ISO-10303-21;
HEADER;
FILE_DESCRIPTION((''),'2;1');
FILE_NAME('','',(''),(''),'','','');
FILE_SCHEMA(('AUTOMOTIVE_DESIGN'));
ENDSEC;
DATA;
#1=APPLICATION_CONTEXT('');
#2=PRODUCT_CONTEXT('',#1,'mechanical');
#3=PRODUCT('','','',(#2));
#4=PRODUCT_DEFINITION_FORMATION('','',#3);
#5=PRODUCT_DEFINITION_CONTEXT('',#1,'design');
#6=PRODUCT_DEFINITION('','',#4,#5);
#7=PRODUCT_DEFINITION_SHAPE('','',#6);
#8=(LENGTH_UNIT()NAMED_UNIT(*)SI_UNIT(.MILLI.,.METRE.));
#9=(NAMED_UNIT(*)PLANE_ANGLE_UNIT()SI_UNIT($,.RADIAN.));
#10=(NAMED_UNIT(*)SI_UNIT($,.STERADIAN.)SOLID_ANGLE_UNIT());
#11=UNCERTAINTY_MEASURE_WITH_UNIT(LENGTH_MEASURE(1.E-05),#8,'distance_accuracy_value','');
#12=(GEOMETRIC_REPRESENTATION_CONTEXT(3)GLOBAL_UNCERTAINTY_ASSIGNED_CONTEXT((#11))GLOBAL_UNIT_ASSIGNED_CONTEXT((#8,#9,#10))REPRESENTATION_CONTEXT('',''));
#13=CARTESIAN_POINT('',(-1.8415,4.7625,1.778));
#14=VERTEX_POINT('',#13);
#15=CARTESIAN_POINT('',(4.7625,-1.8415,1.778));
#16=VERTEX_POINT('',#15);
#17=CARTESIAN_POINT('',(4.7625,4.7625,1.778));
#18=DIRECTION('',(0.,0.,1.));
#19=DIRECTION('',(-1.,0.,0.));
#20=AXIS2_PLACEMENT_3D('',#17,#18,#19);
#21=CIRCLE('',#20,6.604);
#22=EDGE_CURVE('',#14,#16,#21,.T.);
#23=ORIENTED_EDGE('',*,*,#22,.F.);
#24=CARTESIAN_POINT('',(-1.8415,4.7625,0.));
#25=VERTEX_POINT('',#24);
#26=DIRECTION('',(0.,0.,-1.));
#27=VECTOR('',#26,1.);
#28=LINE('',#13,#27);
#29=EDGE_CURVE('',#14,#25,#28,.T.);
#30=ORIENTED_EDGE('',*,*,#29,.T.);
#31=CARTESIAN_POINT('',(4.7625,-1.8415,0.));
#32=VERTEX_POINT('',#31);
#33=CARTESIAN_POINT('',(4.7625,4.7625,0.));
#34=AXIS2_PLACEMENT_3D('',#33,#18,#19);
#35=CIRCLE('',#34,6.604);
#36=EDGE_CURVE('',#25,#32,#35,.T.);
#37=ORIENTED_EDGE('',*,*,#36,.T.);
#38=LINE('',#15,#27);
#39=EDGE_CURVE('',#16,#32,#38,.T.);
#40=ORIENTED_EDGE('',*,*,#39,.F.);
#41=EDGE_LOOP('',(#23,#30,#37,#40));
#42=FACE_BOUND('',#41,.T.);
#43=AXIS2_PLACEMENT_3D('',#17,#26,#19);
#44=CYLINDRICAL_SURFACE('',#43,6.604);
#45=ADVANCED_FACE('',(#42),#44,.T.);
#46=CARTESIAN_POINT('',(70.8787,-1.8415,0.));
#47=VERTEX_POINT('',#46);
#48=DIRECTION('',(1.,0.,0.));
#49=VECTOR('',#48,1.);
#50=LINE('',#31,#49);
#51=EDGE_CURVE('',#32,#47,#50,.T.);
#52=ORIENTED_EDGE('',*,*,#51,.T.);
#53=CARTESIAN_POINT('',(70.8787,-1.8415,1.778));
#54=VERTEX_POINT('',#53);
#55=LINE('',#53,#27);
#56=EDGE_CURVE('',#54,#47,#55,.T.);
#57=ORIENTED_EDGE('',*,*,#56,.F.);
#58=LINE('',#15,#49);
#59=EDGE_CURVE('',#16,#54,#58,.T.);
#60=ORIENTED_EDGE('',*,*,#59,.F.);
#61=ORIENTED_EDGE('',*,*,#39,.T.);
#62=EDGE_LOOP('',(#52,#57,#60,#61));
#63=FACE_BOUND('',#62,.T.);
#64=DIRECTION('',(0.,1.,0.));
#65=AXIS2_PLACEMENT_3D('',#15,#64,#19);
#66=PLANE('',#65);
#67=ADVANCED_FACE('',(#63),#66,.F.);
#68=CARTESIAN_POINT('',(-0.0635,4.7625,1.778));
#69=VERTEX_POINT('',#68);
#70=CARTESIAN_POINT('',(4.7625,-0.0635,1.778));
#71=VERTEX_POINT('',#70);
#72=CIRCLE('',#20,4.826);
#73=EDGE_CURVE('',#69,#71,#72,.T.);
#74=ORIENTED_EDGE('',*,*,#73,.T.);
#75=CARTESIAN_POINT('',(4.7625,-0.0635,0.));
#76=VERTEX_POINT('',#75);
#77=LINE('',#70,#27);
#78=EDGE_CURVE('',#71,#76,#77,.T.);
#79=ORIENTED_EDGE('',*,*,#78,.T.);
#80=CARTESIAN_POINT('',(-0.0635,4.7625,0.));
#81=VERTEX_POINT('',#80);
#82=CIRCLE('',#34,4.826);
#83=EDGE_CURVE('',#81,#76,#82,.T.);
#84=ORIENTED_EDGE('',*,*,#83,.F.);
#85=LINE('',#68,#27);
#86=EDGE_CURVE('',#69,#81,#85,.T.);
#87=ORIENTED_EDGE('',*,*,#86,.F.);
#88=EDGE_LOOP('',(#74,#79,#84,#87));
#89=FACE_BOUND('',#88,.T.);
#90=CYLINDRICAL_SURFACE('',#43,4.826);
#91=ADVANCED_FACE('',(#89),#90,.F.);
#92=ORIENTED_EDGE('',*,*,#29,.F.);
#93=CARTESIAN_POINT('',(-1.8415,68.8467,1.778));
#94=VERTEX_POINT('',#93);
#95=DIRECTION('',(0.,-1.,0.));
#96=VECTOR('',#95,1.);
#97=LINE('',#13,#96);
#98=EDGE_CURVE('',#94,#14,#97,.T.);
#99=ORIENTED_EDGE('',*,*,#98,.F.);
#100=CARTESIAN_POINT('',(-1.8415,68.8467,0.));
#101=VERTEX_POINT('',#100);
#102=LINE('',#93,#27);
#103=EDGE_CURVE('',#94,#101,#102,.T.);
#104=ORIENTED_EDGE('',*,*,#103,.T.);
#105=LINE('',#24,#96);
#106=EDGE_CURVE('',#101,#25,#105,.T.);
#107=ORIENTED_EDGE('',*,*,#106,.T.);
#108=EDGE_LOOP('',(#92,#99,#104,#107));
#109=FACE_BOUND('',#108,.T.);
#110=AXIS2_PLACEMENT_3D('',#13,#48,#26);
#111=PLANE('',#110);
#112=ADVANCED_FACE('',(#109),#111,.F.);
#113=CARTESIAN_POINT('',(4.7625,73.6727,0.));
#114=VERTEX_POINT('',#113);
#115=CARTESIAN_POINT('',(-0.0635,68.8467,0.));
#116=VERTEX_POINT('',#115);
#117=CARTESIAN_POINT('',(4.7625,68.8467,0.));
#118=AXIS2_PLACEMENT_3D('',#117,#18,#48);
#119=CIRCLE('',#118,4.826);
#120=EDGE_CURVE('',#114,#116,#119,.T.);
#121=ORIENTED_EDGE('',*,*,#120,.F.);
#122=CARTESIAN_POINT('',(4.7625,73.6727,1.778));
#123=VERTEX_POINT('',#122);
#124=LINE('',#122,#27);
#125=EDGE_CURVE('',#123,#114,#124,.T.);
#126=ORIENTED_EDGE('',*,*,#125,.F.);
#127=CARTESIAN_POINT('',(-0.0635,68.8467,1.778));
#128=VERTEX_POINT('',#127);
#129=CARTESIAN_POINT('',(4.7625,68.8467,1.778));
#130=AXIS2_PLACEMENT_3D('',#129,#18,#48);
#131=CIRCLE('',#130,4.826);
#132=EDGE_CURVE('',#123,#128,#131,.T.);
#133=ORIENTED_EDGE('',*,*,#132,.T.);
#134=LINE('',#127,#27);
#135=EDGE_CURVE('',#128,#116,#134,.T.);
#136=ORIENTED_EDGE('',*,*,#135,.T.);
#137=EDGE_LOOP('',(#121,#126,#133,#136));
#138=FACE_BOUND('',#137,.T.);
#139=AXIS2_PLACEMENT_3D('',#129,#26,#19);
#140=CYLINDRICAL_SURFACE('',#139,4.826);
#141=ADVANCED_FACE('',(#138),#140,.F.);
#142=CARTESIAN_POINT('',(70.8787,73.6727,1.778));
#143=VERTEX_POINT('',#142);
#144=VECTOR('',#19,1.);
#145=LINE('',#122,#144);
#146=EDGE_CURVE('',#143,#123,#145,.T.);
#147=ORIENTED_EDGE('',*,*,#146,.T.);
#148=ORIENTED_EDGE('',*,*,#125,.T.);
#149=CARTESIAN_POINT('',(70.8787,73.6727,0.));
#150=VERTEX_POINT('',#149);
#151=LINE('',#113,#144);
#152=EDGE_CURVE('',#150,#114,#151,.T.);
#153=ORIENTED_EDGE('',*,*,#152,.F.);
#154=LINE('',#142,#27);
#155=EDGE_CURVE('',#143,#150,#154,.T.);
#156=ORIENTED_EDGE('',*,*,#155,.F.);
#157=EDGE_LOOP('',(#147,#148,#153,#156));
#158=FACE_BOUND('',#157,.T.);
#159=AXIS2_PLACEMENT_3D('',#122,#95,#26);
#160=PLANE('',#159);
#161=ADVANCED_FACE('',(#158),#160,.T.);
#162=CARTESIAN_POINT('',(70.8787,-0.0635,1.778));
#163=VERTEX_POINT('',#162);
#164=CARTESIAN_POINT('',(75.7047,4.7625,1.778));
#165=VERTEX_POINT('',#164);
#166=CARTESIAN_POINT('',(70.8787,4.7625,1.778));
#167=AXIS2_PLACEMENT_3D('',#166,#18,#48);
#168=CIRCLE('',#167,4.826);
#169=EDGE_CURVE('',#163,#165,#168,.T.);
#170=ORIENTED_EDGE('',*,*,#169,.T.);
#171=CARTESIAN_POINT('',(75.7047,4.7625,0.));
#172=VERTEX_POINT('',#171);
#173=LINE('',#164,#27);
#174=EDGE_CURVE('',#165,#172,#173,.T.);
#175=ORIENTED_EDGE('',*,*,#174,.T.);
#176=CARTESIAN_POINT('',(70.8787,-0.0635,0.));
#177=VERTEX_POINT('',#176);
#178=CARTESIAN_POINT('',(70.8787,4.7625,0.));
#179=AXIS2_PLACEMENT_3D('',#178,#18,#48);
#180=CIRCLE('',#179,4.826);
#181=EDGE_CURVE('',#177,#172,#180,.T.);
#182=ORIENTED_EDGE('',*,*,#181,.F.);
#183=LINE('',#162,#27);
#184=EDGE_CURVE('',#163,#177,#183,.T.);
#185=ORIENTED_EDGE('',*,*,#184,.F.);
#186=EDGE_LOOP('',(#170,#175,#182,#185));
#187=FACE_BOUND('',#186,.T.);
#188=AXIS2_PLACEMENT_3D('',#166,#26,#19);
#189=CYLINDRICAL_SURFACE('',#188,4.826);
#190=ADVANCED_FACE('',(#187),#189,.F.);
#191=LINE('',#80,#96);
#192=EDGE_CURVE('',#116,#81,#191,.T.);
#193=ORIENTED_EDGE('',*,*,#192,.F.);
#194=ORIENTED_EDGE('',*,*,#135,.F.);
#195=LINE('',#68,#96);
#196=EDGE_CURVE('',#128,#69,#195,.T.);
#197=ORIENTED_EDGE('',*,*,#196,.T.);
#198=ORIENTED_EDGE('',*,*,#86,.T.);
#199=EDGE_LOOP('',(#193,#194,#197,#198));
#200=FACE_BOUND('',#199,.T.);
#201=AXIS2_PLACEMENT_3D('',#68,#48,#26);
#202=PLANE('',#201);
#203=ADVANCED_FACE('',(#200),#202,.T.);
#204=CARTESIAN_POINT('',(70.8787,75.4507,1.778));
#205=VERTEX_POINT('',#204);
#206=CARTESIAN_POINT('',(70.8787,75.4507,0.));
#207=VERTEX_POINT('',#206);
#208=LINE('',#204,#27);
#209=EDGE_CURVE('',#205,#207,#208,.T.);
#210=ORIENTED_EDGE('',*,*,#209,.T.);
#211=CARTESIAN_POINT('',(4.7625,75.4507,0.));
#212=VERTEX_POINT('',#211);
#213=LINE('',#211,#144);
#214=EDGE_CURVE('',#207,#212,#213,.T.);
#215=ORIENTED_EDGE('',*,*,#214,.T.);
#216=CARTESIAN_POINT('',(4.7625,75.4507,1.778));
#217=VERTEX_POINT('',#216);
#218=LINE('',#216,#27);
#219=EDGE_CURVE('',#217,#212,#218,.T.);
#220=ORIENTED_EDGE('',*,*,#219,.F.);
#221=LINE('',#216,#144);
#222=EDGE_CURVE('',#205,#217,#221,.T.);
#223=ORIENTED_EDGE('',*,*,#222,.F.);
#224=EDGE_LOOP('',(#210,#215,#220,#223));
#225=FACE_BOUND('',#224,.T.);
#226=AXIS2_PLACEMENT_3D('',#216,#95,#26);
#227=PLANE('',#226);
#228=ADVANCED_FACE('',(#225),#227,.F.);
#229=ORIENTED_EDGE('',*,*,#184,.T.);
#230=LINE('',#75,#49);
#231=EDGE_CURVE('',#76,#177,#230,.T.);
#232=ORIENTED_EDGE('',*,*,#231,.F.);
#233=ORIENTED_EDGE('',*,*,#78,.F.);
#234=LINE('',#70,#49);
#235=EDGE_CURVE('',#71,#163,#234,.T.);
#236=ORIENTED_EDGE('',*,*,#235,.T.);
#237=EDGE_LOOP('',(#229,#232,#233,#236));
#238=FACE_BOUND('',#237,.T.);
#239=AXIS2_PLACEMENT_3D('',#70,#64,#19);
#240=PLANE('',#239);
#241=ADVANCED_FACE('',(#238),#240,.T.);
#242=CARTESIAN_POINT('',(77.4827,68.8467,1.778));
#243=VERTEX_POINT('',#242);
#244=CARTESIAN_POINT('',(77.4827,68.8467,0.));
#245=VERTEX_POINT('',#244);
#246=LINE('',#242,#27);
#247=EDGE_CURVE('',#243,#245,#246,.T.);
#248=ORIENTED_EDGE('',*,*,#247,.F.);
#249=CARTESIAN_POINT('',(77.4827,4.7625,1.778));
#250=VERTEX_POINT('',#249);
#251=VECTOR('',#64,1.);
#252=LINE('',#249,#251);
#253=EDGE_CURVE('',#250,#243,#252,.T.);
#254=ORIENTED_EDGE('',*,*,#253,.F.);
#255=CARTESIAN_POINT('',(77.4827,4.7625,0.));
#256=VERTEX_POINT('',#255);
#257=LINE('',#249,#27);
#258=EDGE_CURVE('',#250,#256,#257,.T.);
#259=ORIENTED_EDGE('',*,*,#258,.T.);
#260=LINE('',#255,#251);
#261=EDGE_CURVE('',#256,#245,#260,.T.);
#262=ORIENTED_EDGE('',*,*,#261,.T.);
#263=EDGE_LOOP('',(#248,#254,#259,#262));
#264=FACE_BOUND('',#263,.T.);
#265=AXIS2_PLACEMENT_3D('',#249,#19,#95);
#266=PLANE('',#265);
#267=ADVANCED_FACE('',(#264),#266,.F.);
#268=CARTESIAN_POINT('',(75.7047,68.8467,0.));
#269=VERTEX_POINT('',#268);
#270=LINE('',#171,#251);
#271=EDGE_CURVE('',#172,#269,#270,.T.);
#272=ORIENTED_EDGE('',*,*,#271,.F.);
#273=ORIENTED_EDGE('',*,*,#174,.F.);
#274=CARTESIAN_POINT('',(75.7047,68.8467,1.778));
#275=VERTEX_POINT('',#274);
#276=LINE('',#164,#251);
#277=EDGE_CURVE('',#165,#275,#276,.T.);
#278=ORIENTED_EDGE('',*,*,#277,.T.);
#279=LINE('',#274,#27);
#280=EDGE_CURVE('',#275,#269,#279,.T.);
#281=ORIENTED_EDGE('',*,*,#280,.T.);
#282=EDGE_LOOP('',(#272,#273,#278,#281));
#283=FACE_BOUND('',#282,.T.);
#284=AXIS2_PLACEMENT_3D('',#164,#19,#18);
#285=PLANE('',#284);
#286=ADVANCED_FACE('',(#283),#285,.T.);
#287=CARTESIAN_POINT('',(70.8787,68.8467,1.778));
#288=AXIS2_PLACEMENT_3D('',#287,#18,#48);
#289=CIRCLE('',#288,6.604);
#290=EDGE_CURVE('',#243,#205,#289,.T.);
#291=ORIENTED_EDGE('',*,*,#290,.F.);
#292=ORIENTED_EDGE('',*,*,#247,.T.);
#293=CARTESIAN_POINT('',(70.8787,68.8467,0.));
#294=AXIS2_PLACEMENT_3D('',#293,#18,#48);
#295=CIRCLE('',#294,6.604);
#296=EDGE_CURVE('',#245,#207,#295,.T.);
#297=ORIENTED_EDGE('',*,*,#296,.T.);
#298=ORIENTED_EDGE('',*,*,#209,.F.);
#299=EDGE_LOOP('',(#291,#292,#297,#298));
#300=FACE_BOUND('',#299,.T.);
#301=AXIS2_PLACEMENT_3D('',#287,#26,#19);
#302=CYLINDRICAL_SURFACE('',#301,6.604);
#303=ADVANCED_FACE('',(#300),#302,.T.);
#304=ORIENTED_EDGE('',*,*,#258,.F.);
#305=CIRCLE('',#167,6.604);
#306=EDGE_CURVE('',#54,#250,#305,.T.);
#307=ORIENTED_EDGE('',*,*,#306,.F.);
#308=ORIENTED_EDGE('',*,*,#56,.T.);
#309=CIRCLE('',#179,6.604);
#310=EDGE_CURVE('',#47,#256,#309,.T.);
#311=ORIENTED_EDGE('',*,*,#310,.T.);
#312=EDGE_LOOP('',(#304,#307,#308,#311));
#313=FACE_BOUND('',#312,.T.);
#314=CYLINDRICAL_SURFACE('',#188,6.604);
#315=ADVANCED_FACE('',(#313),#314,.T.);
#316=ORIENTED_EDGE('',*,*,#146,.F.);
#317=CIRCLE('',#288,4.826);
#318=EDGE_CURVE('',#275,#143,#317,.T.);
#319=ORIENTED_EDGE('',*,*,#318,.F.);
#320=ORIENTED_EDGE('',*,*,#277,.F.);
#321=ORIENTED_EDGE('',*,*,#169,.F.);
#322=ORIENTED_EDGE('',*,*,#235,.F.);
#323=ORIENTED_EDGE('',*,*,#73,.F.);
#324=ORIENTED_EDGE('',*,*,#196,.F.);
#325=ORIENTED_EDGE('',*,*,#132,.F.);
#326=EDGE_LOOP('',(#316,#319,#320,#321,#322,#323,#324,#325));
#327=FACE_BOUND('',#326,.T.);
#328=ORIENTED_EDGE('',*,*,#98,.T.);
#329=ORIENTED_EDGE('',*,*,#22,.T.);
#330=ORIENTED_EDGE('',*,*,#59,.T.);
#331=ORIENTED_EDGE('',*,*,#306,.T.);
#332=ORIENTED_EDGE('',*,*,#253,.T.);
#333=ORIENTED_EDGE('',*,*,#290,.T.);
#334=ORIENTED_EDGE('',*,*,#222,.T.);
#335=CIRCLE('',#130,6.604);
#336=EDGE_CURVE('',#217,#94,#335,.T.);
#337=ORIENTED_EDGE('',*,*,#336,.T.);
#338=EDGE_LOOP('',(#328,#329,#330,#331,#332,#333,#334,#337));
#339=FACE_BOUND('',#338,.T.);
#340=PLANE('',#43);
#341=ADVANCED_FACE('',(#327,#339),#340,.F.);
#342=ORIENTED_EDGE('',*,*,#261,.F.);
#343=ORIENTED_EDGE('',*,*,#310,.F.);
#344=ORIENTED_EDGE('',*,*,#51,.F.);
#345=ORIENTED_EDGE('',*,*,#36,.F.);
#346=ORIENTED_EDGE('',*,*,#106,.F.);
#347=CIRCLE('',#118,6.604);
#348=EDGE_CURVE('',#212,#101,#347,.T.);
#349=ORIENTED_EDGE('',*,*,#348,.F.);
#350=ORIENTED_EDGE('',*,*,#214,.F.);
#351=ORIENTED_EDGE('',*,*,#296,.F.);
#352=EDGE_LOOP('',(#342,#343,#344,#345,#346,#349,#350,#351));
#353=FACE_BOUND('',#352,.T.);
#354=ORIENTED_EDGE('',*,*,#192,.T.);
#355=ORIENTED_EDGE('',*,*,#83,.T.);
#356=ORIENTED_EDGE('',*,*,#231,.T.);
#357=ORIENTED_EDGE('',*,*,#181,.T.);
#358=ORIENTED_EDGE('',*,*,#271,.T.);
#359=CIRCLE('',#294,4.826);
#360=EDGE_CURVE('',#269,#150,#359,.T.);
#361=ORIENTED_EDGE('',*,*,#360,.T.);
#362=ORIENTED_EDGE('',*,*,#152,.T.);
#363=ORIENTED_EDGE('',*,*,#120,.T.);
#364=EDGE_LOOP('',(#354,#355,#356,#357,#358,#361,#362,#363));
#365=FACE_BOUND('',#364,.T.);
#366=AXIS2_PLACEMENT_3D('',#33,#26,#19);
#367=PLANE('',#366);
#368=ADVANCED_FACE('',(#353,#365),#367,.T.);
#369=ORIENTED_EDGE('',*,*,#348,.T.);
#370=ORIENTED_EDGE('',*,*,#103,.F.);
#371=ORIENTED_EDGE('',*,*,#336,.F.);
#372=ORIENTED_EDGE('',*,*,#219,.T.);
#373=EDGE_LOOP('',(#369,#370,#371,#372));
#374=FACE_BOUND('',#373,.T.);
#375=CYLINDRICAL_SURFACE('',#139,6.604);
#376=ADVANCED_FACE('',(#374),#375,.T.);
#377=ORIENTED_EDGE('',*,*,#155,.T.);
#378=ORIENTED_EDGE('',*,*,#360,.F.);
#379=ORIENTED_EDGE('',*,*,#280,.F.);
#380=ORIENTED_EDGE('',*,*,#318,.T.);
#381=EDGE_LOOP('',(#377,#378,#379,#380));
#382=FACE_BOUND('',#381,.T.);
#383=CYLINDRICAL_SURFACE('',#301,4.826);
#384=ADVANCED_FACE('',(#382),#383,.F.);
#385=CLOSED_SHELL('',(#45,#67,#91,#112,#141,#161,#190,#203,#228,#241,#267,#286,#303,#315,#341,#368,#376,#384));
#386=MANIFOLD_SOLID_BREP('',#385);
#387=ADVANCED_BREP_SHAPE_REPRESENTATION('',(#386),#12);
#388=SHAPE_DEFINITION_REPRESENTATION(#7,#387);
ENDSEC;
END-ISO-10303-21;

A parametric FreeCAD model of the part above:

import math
import FreeCAD as App
import Part
import Sketcher
from FreeCAD import Vector
Q = App.Units.Quantity

doc = App.newDocument("Part")
params = doc.addObject("Spreadsheet::Sheet", "Params")
for row, (alias, value) in enumerate([
    ("sketch1_radius", "0.26 in"),
    ("sketch1_radius2", "0.19 in"),
    ("sketch1_width", "2.603 in"),
    ("sketch1_height", "2.523 in"),
    ("pad1_length", "0.07 in"),
], start=1):
    params.set(f"A{row}", alias)
    params.set(f"B{row}", "=" + value)
    params.setAlias(f"B{row}", alias)

body = doc.addObject("PartDesign::Body", "Body")

# Sketch on XY plane
sketch1 = body.newObject("Sketcher::SketchObject", "Sketch")
sketch1.AttachmentSupport = (doc.getObject("XY_Plane"), [""])
sketch1.MapMode = "FlatFace"
sketch1.addGeometry(Part.LineSegment(Vector(-1.8, 68.8, 0), Vector(-1.8, 4.8, 0)), False)
sketch1.addGeometry(Part.ArcOfCircle(Part.Circle(Vector(4.8, 4.8, 0), Vector(0, 0, 1), 6.6), math.radians(180), math.radians(270)), False)
sketch1.addGeometry(Part.LineSegment(Vector(4.8, -1.8, 0), Vector(70.9, -1.8, 0)), False)
sketch1.addGeometry(Part.ArcOfCircle(Part.Circle(Vector(70.9, 4.8, 0), Vector(0, 0, 1), 6.6), math.radians(-90), math.radians(0)), False)
sketch1.addGeometry(Part.LineSegment(Vector(77.5, 4.8, 0), Vector(77.5, 68.8, 0)), False)
sketch1.addGeometry(Part.ArcOfCircle(Part.Circle(Vector(70.9, 68.8, 0), Vector(0, 0, 1), 6.6), math.radians(0), math.radians(90)), False)
sketch1.addGeometry(Part.LineSegment(Vector(70.9, 75.5, 0), Vector(4.8, 75.5, 0)), False)
sketch1.addGeometry(Part.ArcOfCircle(Part.Circle(Vector(4.8, 68.8, 0), Vector(0, 0, 1), 6.6), math.radians(90), math.radians(180)), False)
sketch1.addGeometry(Part.LineSegment(Vector(-0.1, 4.8, 0), Vector(-0.1, 68.8, 0)), False)
sketch1.addGeometry(Part.ArcOfCircle(Part.Circle(Vector(4.8, 68.8, 0), Vector(0, 0, 1), 4.8), math.radians(90), math.radians(180)), False)
sketch1.addGeometry(Part.LineSegment(Vector(4.8, 73.7, 0), Vector(70.9, 73.7, 0)), False)
sketch1.addGeometry(Part.ArcOfCircle(Part.Circle(Vector(70.9, 68.8, 0), Vector(0, 0, 1), 4.8), math.radians(0), math.radians(90)), False)
sketch1.addGeometry(Part.LineSegment(Vector(75.7, 68.8, 0), Vector(75.7, 4.8, 0)), False)
sketch1.addGeometry(Part.ArcOfCircle(Part.Circle(Vector(70.9, 4.8, 0), Vector(0, 0, 1), 4.8), math.radians(-90), math.radians(0)), False)
sketch1.addGeometry(Part.LineSegment(Vector(70.9, -0.1, 0), Vector(4.8, -0.1, 0)), False)
sketch1.addGeometry(Part.ArcOfCircle(Part.Circle(Vector(4.8, 4.8, 0), Vector(0, 0, 1), 4.8), math.radians(180), math.radians(270)), False)
sketch1.addConstraint(Sketcher.Constraint("Tangent", 0, 2, 1, 1))
sketch1.addConstraint(Sketcher.Constraint("Tangent", 1, 2, 2, 1))
sketch1.addConstraint(Sketcher.Constraint("Tangent", 2, 2, 3, 1))
sketch1.addConstraint(Sketcher.Constraint("Tangent", 3, 2, 4, 1))
sketch1.addConstraint(Sketcher.Constraint("Tangent", 4, 2, 5, 1))
sketch1.addConstraint(Sketcher.Constraint("Tangent", 5, 2, 6, 1))
sketch1.addConstraint(Sketcher.Constraint("Tangent", 6, 2, 7, 1))
sketch1.addConstraint(Sketcher.Constraint("Tangent", 7, 2, 0, 1))
sketch1.addConstraint(Sketcher.Constraint("Tangent", 8, 2, 9, 2))
sketch1.addConstraint(Sketcher.Constraint("Tangent", 9, 1, 10, 1))
sketch1.addConstraint(Sketcher.Constraint("Tangent", 10, 2, 11, 2))
sketch1.addConstraint(Sketcher.Constraint("Tangent", 11, 1, 12, 1))
sketch1.addConstraint(Sketcher.Constraint("Tangent", 12, 2, 13, 2))
sketch1.addConstraint(Sketcher.Constraint("Tangent", 13, 1, 14, 1))
sketch1.addConstraint(Sketcher.Constraint("Tangent", 14, 2, 15, 2))
sketch1.addConstraint(Sketcher.Constraint("Tangent", 15, 1, 8, 1))
sketch1.addConstraint(Sketcher.Constraint("Vertical", 0))
sketch1.addConstraint(Sketcher.Constraint("Horizontal", 2))
sketch1.addConstraint(Sketcher.Constraint("Vertical", 4))
sketch1.addConstraint(Sketcher.Constraint("Horizontal", 6))
sketch1.addConstraint(Sketcher.Constraint("Vertical", 8))
sketch1.addConstraint(Sketcher.Constraint("Horizontal", 10))
sketch1.addConstraint(Sketcher.Constraint("Vertical", 12))
sketch1.addConstraint(Sketcher.Constraint("Horizontal", 14))
sketch1.addConstraint(Sketcher.Constraint("Coincident", 9, 3, 7, 3))
sketch1.addConstraint(Sketcher.Constraint("Coincident", 11, 3, 5, 3))
sketch1.addConstraint(Sketcher.Constraint("Coincident", 13, 3, 3, 3))
sketch1.addConstraint(Sketcher.Constraint("Equal", 1, 3))
sketch1.addConstraint(Sketcher.Constraint("Equal", 3, 5))
sketch1.addConstraint(Sketcher.Constraint("Equal", 5, 7))
sketch1.addConstraint(Sketcher.Constraint("Equal", 13, 15))
sketch1.addConstraint(Sketcher.Constraint("Radius", 1, Q("0.26 in")))
sketch1.addConstraint(Sketcher.Constraint("Radius", 9, Q("0.19 in")))
sketch1.addConstraint(Sketcher.Constraint("DistanceX", 2, 1, 2, 2, Q("2.603 in")))
sketch1.addConstraint(Sketcher.Constraint("DistanceY", 0, 2, 0, 1, Q("2.523 in")))
sketch1.addConstraint(Sketcher.Constraint("DistanceX", -1, 1, 1, 3, Q("0.1875 in")))
sketch1.addConstraint(Sketcher.Constraint("DistanceY", -1, 1, 1, 3, Q("0.1875 in")))
sketch1.setExpression("Constraints[31]", "Params.sketch1_radius")
sketch1.setExpression("Constraints[32]", "Params.sketch1_radius2")
sketch1.setExpression("Constraints[33]", "Params.sketch1_width")
sketch1.setExpression("Constraints[34]", "Params.sketch1_height")
pad1 = body.newObject("PartDesign::Pad", "Pad")
pad1.Profile = sketch1
pad1.setExpression("Length", "Params.pad1_length")

doc.recompute()
